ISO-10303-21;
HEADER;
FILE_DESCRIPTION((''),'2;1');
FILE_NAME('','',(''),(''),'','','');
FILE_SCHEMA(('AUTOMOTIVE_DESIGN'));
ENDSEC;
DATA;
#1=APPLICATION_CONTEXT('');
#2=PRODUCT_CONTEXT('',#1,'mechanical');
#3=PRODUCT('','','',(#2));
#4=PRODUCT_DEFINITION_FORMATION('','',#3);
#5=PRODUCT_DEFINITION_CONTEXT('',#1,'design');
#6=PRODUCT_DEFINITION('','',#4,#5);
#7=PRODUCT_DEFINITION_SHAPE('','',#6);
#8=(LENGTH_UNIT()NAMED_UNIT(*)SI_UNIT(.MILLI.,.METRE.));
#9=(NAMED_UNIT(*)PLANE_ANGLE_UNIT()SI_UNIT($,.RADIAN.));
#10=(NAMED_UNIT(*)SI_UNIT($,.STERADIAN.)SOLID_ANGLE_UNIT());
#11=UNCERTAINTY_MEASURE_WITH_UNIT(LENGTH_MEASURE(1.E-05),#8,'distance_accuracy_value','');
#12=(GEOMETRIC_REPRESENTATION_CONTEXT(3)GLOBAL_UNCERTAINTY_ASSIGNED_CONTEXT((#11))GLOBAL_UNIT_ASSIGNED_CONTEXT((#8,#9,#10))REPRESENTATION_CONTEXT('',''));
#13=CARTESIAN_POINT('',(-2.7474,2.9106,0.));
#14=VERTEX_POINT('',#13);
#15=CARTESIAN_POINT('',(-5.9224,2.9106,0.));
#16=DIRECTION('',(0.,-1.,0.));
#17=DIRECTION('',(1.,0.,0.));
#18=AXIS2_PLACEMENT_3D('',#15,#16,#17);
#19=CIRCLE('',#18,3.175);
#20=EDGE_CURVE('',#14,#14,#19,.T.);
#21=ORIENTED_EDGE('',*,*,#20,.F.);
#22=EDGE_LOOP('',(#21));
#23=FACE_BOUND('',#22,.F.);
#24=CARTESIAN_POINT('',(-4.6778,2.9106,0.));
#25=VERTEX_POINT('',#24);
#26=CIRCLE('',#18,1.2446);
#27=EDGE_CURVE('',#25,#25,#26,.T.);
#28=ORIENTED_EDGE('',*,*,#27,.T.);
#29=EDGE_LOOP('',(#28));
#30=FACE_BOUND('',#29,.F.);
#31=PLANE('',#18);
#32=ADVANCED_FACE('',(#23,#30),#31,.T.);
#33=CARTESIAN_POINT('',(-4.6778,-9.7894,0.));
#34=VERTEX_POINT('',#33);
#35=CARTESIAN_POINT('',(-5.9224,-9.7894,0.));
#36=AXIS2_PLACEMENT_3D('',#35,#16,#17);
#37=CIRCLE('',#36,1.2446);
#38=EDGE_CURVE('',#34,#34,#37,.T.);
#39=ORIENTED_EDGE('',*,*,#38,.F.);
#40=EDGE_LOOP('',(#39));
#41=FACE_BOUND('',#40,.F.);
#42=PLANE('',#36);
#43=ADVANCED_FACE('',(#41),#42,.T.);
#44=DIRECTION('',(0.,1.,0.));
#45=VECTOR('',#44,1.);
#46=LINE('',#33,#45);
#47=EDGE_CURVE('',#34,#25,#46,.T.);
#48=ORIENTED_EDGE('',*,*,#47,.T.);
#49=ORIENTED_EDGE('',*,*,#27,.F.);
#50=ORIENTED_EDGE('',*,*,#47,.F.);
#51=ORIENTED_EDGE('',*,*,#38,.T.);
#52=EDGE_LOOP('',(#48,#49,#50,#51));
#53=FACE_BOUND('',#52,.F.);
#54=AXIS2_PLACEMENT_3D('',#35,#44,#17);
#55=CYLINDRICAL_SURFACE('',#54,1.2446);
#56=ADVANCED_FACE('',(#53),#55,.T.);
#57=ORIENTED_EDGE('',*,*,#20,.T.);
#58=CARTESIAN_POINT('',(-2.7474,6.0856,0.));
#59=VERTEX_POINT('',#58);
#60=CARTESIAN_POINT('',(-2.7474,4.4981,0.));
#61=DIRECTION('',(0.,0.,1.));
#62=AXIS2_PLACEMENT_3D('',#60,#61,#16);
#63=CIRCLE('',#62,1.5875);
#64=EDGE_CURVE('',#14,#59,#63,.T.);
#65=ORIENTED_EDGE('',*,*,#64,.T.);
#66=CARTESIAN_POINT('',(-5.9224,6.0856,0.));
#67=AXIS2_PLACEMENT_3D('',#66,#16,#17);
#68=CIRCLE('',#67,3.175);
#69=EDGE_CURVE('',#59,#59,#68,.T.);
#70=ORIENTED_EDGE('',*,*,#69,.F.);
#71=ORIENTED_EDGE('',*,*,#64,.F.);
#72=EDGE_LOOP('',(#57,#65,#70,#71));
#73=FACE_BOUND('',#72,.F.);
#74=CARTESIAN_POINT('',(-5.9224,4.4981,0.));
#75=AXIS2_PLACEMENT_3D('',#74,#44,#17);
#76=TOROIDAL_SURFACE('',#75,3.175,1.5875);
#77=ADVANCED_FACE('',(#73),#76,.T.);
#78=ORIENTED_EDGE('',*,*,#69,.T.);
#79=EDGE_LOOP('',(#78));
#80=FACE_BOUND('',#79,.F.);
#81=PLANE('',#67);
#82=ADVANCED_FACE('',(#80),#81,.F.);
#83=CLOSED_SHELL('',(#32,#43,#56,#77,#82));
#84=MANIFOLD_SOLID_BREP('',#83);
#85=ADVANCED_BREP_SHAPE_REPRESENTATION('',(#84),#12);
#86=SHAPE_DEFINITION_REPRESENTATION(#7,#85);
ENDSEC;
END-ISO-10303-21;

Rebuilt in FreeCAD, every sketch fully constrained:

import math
import FreeCAD as App
import Part
import Sketcher
from FreeCAD import Vector
Q = App.Units.Quantity

doc = App.newDocument("Part")
body = doc.addObject("PartDesign::Body", "Body")

sketch1 = body.newObject("Sketcher::SketchObject", "Sketch")
sketch1.AttachmentSupport = (doc.getObject("XY_Plane"), [""])
sketch1.MapMode = "FlatFace"
sketch1.addGeometry([
    Part.LineSegment(Vector(-2.7, 6.1, 0), Vector(-5.9, 6.1, 0)),
    Part.LineSegment(Vector(-5.9, 6.1, 0), Vector(-5.9, -9.8, 0)),
    Part.LineSegment(Vector(-5.9, -9.8, 0), Vector(-4.7, -9.8, 0)),
    Part.LineSegment(Vector(-4.7, -9.8, 0), Vector(-4.7, 2.9, 0)),
    Part.LineSegment(Vector(-4.7, 2.9, 0), Vector(-2.7, 2.9, 0)),
    Part.ArcOfCircle(Part.Circle(Vector(-2.7, 4.5, 0), Vector(0, 0, 1), 1.6), math.radians(-90), math.radians(90)),
], False)
sketch1.addGeometry(Part.LineSegment(Vector(-5.9, 6.1, 0), Vector(-5.9, -9.8, 0)), True)
sketch1.addConstraint([
    Sketcher.Constraint("Coincident", 0, 2, 1, 1),
    Sketcher.Constraint("Coincident", 1, 2, 2, 1),
    Sketcher.Constraint("Coincident", 2, 2, 3, 1),
    Sketcher.Constraint("Coincident", 3, 2, 4, 1),
    Sketcher.Constraint("Tangent", 4, 2, 5, 1),
    Sketcher.Constraint("Tangent", 5, 2, 0, 1),
    Sketcher.Constraint("Horizontal", 0),
    Sketcher.Constraint("Vertical", 1),
    Sketcher.Constraint("Horizontal", 2),
    Sketcher.Constraint("Vertical", 3),
    Sketcher.Constraint("Horizontal", 4),
    Sketcher.Constraint("Vertical", 6),
    Sketcher.Constraint("Coincident", 6, 1, 0, 2),
    Sketcher.Constraint("Horizontal", 2, 2, 6, 2),
    Sketcher.Constraint("DistanceY", 3, 1, 3, 2, Q("0.5 in")),
    Sketcher.Constraint("Radius", 5, Q("0.0625 in")),
    Sketcher.Constraint("DistanceX", 0, 2, 0, 1, Q("0.125 in")),
    Sketcher.Constraint("DistanceX", 2, 1, 2, 2, Q("0.049 in")),
    Sketcher.Constraint("DistanceY", -1, 1, 5, 3, Q("0.1771 in")),
    Sketcher.Constraint("DistanceX", 5, 3, -1, 1, Q("2.7474 mm")),
])
revolution = body.newObject("PartDesign::Revolution", "Revolution")
revolution.Profile = sketch1
revolution.ReferenceAxis = (sketch1, ["Axis0"])
revolution.Angle = 360

doc.recompute()
